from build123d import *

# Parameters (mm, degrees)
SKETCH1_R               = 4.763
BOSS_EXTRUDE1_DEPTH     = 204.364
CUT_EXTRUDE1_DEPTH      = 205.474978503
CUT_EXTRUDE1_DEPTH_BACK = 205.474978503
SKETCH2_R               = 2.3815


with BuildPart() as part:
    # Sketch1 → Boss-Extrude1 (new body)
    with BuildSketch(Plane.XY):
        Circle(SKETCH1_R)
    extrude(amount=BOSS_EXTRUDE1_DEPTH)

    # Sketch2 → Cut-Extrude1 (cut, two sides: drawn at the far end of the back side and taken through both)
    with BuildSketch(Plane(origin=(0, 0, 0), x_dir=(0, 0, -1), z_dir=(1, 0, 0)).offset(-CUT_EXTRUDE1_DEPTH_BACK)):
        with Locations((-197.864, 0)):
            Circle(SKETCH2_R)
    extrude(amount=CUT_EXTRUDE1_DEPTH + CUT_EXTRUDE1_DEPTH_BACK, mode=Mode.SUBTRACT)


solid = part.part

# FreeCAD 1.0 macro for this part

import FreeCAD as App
import Part
import Sketcher
from FreeCAD import Vector
Q = App.Units.Quantity

doc = App.newDocument("Part")
body = doc.addObject("PartDesign::Body", "Body")

# Sketch on XY plane
sketch1 = body.newObject("Sketcher::SketchObject", "Sketch")
sketch1.AttachmentSupport = (doc.getObject("XY_Plane"), [""])
sketch1.MapMode = "FlatFace"
sketch1.addGeometry(Part.Circle(Vector(0, 0, 0), Vector(0, 0, 1), 4.763), False)
sketch1.addConstraint([
    Sketcher.Constraint("Coincident", 0, 3, -1, 1),
    Sketcher.Constraint("Diameter", 0, Q("9.526 mm")),
])
pad1 = body.newObject("PartDesign::Pad", "Pad")
pad1.Profile = sketch1
pad1.Length = 204.364

# Sketch on YZ plane
sketch2 = body.newObject("Sketcher::SketchObject", "Sketch001")
sketch2.AttachmentSupport = (doc.getObject("YZ_Plane"), [""])
sketch2.MapMode = "FlatFace"
sketch2.addGeometry(Part.Circle(Vector(0, 197.864, 0), Vector(0, 0, 1), 2.3815), False)
sketch2.addConstraint([
    Sketcher.Constraint("PointOnObject", 0, 3, -2),
    Sketcher.Constraint("Diameter", 0, Q("4.763 mm")),
    Sketcher.Constraint("DistanceY", -1, 1, 0, 3, Q("197.864 mm")),
])
pocket1 = body.newObject("PartDesign::Pocket", "Pocket")
pocket1.Profile = sketch2
pocket1.Type = "ThroughAll"
pocket1.Midplane = True

doc.recompute()
